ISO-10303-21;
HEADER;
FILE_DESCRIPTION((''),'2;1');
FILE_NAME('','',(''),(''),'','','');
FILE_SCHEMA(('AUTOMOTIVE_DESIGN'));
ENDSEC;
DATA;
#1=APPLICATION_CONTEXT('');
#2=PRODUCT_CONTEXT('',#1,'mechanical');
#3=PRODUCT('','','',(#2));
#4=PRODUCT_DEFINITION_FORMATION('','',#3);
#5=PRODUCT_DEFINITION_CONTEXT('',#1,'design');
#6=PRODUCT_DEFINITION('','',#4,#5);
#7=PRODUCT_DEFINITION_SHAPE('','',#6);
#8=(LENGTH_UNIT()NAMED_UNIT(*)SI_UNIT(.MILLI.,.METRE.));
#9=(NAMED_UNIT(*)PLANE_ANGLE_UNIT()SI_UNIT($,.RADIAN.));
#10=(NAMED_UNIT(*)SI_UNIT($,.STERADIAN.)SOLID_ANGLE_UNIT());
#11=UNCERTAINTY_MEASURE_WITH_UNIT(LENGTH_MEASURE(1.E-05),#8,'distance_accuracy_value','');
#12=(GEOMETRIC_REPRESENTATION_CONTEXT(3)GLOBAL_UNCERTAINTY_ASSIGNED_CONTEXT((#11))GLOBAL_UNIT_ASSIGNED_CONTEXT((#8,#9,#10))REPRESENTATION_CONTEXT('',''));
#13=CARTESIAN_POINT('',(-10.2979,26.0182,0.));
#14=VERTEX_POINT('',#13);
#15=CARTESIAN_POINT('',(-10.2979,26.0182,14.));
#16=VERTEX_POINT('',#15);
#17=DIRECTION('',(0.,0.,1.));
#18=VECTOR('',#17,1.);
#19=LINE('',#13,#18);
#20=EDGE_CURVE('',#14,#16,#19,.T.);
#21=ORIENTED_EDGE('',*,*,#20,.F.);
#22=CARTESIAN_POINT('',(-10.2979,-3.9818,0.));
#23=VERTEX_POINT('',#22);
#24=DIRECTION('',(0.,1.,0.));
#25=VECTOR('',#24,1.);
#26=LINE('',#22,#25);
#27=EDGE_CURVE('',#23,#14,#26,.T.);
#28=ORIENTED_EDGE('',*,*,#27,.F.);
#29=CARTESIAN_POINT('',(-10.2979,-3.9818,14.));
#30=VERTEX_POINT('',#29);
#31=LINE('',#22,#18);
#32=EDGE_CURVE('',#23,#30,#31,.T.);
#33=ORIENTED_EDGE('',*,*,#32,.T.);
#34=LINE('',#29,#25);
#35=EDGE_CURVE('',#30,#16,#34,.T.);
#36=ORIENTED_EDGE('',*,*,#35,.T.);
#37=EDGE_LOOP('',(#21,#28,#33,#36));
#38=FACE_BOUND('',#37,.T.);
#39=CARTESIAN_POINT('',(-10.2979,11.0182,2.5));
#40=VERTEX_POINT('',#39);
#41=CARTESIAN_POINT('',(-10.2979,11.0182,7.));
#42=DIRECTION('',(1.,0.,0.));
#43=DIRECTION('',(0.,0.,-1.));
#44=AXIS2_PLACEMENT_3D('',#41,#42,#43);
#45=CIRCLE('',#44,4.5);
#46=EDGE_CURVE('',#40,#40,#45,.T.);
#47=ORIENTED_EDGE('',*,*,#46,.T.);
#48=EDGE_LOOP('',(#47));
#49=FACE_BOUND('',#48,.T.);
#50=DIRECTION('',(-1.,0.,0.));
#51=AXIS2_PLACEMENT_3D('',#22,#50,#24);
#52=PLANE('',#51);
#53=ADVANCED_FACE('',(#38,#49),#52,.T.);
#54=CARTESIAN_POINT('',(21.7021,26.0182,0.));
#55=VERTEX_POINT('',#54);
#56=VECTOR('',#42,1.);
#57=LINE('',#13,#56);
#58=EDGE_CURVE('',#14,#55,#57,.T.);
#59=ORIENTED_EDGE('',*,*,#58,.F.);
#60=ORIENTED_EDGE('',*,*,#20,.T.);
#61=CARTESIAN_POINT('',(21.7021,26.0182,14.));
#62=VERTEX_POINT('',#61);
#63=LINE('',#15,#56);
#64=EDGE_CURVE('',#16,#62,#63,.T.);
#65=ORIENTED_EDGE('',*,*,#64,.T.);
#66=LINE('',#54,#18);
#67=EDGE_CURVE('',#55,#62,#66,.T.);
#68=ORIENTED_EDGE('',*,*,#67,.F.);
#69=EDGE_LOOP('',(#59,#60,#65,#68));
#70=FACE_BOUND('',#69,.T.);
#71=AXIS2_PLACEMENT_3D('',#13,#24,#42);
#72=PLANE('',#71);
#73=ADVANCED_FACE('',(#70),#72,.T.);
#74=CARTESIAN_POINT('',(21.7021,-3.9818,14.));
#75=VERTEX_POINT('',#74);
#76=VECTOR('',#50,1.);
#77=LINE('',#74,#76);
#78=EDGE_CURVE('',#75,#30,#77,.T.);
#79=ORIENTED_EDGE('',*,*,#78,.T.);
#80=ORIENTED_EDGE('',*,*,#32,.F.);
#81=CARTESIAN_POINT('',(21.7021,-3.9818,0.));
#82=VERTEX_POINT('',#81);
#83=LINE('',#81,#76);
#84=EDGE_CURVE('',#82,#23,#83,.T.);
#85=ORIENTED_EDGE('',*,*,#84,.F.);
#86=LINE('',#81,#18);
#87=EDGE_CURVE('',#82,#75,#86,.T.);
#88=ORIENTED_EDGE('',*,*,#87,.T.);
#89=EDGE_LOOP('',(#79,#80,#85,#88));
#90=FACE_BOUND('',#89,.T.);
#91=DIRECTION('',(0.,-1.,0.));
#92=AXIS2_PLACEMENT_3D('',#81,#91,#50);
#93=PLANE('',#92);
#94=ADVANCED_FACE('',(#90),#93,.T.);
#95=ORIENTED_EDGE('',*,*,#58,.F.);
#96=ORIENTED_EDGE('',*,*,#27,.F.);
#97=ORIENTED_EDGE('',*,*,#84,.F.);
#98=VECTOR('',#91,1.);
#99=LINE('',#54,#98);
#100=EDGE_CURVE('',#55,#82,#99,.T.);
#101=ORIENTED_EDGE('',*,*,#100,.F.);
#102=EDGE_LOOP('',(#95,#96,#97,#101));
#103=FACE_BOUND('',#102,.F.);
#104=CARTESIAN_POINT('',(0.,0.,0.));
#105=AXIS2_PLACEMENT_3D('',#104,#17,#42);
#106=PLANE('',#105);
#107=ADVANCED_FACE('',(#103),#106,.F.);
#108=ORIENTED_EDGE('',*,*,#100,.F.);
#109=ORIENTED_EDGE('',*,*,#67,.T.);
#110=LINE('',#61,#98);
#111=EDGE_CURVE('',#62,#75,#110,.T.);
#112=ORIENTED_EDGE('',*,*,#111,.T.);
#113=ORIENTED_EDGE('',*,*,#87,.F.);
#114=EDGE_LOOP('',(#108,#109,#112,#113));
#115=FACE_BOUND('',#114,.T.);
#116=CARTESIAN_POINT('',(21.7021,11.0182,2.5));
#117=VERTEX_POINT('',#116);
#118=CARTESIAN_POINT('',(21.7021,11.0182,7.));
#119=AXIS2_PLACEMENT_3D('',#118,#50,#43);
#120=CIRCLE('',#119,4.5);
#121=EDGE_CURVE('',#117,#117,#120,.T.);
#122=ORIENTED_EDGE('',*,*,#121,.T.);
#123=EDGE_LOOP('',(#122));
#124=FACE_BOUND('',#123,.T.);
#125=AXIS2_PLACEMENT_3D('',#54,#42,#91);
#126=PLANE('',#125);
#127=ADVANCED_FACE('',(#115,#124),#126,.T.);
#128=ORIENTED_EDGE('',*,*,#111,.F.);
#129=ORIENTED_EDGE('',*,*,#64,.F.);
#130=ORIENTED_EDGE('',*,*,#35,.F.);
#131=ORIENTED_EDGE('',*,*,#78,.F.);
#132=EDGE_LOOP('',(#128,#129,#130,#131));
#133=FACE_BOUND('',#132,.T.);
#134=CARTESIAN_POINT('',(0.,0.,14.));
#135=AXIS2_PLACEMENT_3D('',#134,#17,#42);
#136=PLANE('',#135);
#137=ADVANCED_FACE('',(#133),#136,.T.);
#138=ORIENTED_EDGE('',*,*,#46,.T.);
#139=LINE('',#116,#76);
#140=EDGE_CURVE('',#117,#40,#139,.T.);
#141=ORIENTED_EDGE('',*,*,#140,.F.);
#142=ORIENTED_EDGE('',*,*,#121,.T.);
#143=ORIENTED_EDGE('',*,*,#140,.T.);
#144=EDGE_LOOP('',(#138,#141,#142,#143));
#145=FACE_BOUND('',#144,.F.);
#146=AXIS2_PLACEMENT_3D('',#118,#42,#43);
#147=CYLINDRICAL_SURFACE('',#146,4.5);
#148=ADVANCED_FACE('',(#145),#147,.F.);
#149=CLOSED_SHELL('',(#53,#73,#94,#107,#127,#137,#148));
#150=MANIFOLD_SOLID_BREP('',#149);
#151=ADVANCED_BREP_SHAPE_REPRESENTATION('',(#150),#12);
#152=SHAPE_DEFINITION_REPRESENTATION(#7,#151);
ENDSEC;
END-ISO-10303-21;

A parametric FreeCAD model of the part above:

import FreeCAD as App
import Part
import Sketcher

V = App.Vector


def add_polygon(sketch, points):
    """Adds a closed chain of lines whose ends are joined by coincident constraints."""
    first, n = sketch.GeometryCount, len(points)
    for a, b in zip(points, points[1:] + points[:1]):
        sketch.addGeometry(Part.LineSegment(App.Vector(*a, 0), App.Vector(*b, 0)), False)
    for i in range(n):
        sketch.addConstraint(Sketcher.Constraint("Coincident", first + i, 2, first + (i + 1) % n, 1))

doc = App.newDocument("Part")
params = doc.addObject("Spreadsheet::Sheet", "Params")
for row, (alias, value) in enumerate([
    ("sketch1_width", "32 mm"),
    ("sketch1_height", "30 mm"),
    ("pad1_length", "14 mm"),
    ("sketch2_diameter", "9 mm"),
], start=1):
    params.set(f"A{row}", alias)
    params.set(f"B{row}", "=" + value)
    params.setAlias(f"B{row}", alias)

body = doc.addObject("PartDesign::Body", "Body")

# Sketch on XY plane
sketch1 = body.newObject("Sketcher::SketchObject", "Sketch")
sketch1.AttachmentSupport = (doc.getObject("XY_Plane"), [""])
sketch1.MapMode = "FlatFace"
add_polygon(sketch1, [(22, 26), (-10, 26), (-10, -4), (22, -4)])  # lines 0-3
sketch1.addConstraint(Sketcher.Constraint("Horizontal", 0))
sketch1.addConstraint(Sketcher.Constraint("Vertical", 1))
sketch1.addConstraint(Sketcher.Constraint("Horizontal", 2))
sketch1.addConstraint(Sketcher.Constraint("Vertical", 3))
sketch1.addConstraint(Sketcher.Constraint("DistanceX", 0, 2, 0, 1, 32.0))
sketch1.addConstraint(Sketcher.Constraint("DistanceY", 1, 2, 1, 1, 30.0))
sketch1.addConstraint(Sketcher.Constraint("DistanceX", 0, 2, -1, 1, 10.298))
sketch1.addConstraint(Sketcher.Constraint("DistanceY", -1, 1, 0, 2, 26.0182))
sketch1.setExpression("Constraints[8]", "Params.sketch1_width")
sketch1.setExpression("Constraints[9]", "Params.sketch1_height")
pad1 = body.newObject("PartDesign::Pad", "Pad")
pad1.Profile = sketch1
pad1.setExpression("Length", "Params.pad1_length")

# Sketch on YZ plane
sketch2 = body.newObject("Sketcher::SketchObject", "Sketch001")
sketch2.AttachmentSupport = (doc.getObject("YZ_Plane"), [""])
sketch2.MapMode = "FlatFace"
sketch2.AttachmentOffset = App.Placement(V(0, 0, 21.7021), App.Rotation())
sketch2.addGeometry(Part.Circle(V(11, 7, 0), V(0, 0, 1), 4.5), False)
sketch2.addConstraint(Sketcher.Constraint("Diameter", 0, 9.0))
sketch2.addConstraint(Sketcher.Constraint("DistanceY", -1, 1, 0, 3, 7.0))
sketch2.addConstraint(Sketcher.Constraint("DistanceX", -1, 1, 0, 3, 11.0182))
sketch2.setExpression("Constraints[0]", "Params.sketch2_diameter")
pocket1 = body.newObject("PartDesign::Pocket", "Pocket")
pocket1.Profile = sketch2
pocket1.Type = "ThroughAll"

doc.recompute()
